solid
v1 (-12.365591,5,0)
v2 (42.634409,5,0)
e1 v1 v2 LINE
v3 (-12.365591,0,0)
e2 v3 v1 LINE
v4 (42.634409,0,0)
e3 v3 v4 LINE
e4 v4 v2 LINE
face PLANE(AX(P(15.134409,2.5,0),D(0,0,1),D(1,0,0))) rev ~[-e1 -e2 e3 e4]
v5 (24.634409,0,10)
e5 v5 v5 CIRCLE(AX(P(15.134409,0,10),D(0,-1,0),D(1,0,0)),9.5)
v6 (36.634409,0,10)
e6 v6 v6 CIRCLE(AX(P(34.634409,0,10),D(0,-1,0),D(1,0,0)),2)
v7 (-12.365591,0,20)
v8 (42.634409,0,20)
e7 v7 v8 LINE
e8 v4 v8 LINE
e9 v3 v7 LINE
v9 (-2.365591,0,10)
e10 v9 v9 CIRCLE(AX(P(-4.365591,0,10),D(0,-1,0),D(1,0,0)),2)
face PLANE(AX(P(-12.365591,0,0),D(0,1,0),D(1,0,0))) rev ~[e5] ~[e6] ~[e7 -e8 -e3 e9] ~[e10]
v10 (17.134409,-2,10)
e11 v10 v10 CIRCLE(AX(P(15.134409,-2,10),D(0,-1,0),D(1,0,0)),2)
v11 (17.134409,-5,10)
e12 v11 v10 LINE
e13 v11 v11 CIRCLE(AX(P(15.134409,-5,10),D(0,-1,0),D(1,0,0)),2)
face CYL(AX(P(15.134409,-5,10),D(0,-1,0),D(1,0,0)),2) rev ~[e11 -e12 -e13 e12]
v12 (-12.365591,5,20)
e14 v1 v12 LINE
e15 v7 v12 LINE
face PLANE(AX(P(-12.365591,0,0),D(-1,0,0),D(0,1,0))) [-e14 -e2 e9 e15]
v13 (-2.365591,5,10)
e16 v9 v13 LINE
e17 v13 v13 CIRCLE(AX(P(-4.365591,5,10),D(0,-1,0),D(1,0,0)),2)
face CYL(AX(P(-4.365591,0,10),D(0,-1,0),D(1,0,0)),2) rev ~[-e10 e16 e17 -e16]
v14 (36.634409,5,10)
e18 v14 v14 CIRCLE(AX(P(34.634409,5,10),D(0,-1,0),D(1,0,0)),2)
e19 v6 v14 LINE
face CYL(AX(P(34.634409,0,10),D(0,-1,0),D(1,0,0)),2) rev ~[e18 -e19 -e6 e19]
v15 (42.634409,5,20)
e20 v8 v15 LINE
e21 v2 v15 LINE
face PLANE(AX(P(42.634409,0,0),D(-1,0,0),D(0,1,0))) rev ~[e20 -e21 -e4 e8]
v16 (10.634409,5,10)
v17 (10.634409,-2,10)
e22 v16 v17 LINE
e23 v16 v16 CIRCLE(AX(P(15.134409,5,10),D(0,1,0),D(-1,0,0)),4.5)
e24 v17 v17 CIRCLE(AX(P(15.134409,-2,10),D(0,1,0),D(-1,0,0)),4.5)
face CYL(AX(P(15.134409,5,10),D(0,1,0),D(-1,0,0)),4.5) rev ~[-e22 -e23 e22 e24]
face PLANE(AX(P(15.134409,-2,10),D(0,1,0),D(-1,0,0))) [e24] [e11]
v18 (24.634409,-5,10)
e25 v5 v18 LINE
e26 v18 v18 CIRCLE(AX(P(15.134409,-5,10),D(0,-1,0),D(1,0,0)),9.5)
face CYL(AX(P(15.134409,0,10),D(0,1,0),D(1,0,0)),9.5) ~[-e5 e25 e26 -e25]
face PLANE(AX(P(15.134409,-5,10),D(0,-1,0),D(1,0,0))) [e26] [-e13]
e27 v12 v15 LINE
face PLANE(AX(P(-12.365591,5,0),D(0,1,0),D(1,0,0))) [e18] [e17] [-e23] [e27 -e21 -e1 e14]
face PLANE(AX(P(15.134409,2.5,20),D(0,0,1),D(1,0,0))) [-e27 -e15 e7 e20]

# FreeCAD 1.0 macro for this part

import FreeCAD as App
import Part
import Sketcher
from FreeCAD import Vector


def add_polygon(sketch, points):
    """Adds a closed chain of lines whose ends are joined by coincident constraints."""
    first, n = sketch.GeometryCount, len(points)
    for a, b in zip(points, points[1:] + points[:1]):
        sketch.addGeometry(Part.LineSegment(App.Vector(*a, 0), App.Vector(*b, 0)), False)
    for i in range(n):
        sketch.addConstraint(Sketcher.Constraint("Coincident", first + i, 2, first + (i + 1) % n, 1))

doc = App.newDocument("Part")
params = doc.addObject("Spreadsheet::Sheet", "Params")
for row, (alias, value) in enumerate([
    ("sketch1_width", "55 mm"),
    ("sketch1_height", "5 mm"),
    ("pad1_length", "20 mm"),
    ("sketch2_diameter", "19 mm"),
    ("pad2_length", "5 mm"),
    ("sketch3_diameter", "4 mm"),
    ("sketch4_diameter", "9 mm"),
    ("pocket2_length", "7 mm"),
    ("sketch5_diameter", "4 mm"),
    ("pocket3_length", "25 mm"),
], start=1):
    params.set(f"A{row}", alias)
    params.set(f"B{row}", "=" + value)
    params.setAlias(f"B{row}", alias)

body = doc.addObject("PartDesign::Body", "Body")

sketch1 = body.newObject("Sketcher::SketchObject", "Sketch")
sketch1.AttachmentSupport = (doc.getObject("XY_Plane"), [""])
sketch1.MapMode = "FlatFace"
add_polygon(sketch1, [(-12, 5), (-12, 0), (43, 0), (43, 5)])
sketch1.addConstraint(Sketcher.Constraint("Vertical", 0))
sketch1.addConstraint(Sketcher.Constraint("Horizontal", 1))
sketch1.addConstraint(Sketcher.Constraint("Vertical", 2))
sketch1.addConstraint(Sketcher.Constraint("Horizontal", 3))
sketch1.addConstraint(Sketcher.Constraint("PointOnObject", 0, 2, -1))
sketch1.addConstraint(Sketcher.Constraint("DistanceX", 1, 1, 1, 2, 55.0))
sketch1.addConstraint(Sketcher.Constraint("DistanceY", 0, 2, 0, 1, 5.0))
sketch1.addConstraint(Sketcher.Constraint("DistanceX", 0, 2, -1, 1, 12.365591))
sketch1.setExpression("Constraints[9]", "Params.sketch1_width")
sketch1.setExpression("Constraints[10]", "Params.sketch1_height")
pad1 = body.newObject("PartDesign::Pad", "Pad")
pad1.Profile = sketch1
pad1.setExpression("Length", "Params.pad1_length")

sketch2 = body.newObject("Sketcher::SketchObject", "Sketch001")
sketch2.AttachmentSupport = (doc.getObject("XZ_Plane"), [""])
sketch2.MapMode = "FlatFace"
sketch2.addGeometry(Part.Circle(Vector(15, 10, 0), Vector(0, 0, 1), 10), False)
sketch2.addConstraint(Sketcher.Constraint("Diameter", 0, 19.0))
sketch2.addConstraint(Sketcher.Constraint("DistanceY", -1, 1, 0, 3, 10.0))
sketch2.addConstraint(Sketcher.Constraint("DistanceX", -1, 1, 0, 3, 15.134409))
sketch2.setExpression("Constraints[0]", "Params.sketch2_diameter")
pad2 = body.newObject("PartDesign::Pad", "Pad001")
pad2.Profile = sketch2
pad2.setExpression("Length", "Params.pad2_length")

sketch3 = body.newObject("Sketcher::SketchObject", "Sketch002")
sketch3.AttachmentSupport = (doc.getObject("XZ_Plane"), [""])
sketch3.MapMode = "FlatFace"
sketch3.AttachmentOffset = App.Placement(Vector(0, 0, 5), App.Rotation())
sketch3.addGeometry(Part.Circle(Vector(15.1, 10, 0), Vector(0, 0, 1), 2), False)
sketch3.addConstraint(Sketcher.Constraint("Diameter", 0, 4.0))
sketch3.addConstraint(Sketcher.Constraint("DistanceY", -1, 1, 0, 3, 10.0))
sketch3.addConstraint(Sketcher.Constraint("DistanceX", -1, 1, 0, 3, 15.134409))
sketch3.setExpression("Constraints[0]", "Params.sketch3_diameter")
pocket1 = body.newObject("PartDesign::Pocket", "Pocket")
pocket1.Profile = sketch3
pocket1.Type = "ThroughAll"

sketch4 = body.newObject("Sketcher::SketchObject", "Sketch003")
sketch4.AttachmentSupport = (doc.getObject("XZ_Plane"), [""])
sketch4.MapMode = "FlatFace"
sketch4.AttachmentOffset = App.Placement(Vector(0, 0, -5), App.Rotation())
sketch4.addGeometry(Part.Circle(Vector(15.1, 10, 0), Vector(0, 0, 1), 4.5), False)
sketch4.addConstraint(Sketcher.Constraint("Diameter", 0, 9.0))
sketch4.addConstraint(Sketcher.Constraint("DistanceY", -1, 1, 0, 3, 10.0))
sketch4.addConstraint(Sketcher.Constraint("DistanceX", -1, 1, 0, 3, 15.134409))
sketch4.setExpression("Constraints[0]", "Params.sketch4_diameter")
pocket2 = body.newObject("PartDesign::Pocket", "Pocket001")
pocket2.Profile = sketch4
pocket2.setExpression("Length", "Params.pocket2_length")
pocket2.Reversed = True

sketch5 = body.newObject("Sketcher::SketchObject", "Sketch004")
sketch5.AttachmentSupport = (doc.getObject("XZ_Plane"), [""])
sketch5.MapMode = "FlatFace"
sketch5.addGeometry(Part.Circle(Vector(-4.4, 10, 0), Vector(0, 0, 1), 2), False)
sketch5.addGeometry(Part.Circle(Vector(34.6, 10, 0), Vector(0, 0, 1), 2), False)
sketch5.addConstraint(Sketcher.Constraint("Equal", 0, 1))
sketch5.addConstraint(Sketcher.Constraint("Horizontal", 0, 3, 1, 3))
sketch5.addConstraint(Sketcher.Constraint("Diameter", 0, 4.0))
sketch5.addConstraint(Sketcher.Constraint("DistanceY", -1, 1, 0, 3, 10.0))
sketch5.addConstraint(Sketcher.Constraint("DistanceX", 0, 3, 1, 3, 39.0))
sketch5.addConstraint(Sketcher.Constraint("DistanceX", 0, 3, -1, 1, 4.365591))
sketch5.setExpression("Constraints[2]", "Params.sketch5_diameter")
pocket3 = body.newObject("PartDesign::Pocket", "Pocket002")
pocket3.Profile = sketch5
pocket3.setExpression("Length", "Params.pocket3_length")

doc.recompute()
